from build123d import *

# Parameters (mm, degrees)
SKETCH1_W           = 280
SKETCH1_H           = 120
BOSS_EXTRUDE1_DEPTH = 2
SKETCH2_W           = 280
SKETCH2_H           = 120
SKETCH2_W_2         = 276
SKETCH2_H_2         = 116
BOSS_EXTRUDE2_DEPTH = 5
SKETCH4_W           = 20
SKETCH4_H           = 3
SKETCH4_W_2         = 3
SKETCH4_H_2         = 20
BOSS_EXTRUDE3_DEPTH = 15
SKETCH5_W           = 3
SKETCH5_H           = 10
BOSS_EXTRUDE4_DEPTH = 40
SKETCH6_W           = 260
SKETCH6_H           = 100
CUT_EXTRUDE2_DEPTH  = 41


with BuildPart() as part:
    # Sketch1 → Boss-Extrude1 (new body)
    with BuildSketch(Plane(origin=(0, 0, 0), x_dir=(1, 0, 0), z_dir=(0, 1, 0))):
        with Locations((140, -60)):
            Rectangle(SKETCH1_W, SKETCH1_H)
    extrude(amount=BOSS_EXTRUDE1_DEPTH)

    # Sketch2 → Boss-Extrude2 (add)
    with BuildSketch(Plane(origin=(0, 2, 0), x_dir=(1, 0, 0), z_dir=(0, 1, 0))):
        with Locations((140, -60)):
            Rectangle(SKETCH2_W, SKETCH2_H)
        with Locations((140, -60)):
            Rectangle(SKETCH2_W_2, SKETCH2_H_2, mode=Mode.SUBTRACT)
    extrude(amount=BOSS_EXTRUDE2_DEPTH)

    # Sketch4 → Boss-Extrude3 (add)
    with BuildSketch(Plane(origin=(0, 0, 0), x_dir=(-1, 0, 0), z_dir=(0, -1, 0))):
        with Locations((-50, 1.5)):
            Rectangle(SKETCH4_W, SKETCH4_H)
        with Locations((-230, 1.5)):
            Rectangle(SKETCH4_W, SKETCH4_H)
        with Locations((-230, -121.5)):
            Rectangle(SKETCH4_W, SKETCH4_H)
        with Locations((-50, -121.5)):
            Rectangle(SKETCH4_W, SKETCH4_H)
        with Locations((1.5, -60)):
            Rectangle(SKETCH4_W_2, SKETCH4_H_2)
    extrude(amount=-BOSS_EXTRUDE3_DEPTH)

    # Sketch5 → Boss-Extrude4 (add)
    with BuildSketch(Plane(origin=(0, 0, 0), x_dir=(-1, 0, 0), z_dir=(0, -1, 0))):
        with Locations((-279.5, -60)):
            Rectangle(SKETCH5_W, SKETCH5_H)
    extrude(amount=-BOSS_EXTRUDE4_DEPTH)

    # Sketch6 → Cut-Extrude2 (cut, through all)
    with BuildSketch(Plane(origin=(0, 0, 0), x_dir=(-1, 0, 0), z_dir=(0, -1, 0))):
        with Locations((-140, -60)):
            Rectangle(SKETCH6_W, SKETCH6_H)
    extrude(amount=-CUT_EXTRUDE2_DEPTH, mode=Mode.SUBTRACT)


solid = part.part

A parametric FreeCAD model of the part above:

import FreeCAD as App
import Part
import Sketcher
Q = App.Units.Quantity

doc = App.newDocument("Part")
body = doc.addObject("PartDesign::Body", "Body")

sketch1 = body.newObject("Sketcher::SketchObject", "Sketch")
sketch1.AttachmentSupport = (doc.getObject("XZ_Plane"), [""])
sketch1.MapMode = "FlatFace"
sketch1.addGeometry(Part.LineSegment(App.Vector(0, 0, 0), App.Vector(0, 120, 0)), False)
sketch1.addGeometry(Part.LineSegment(App.Vector(0, 120, 0), App.Vector(280, 120, 0)), False)
sketch1.addGeometry(Part.LineSegment(App.Vector(280, 120, 0), App.Vector(280, 0, 0)), False)
sketch1.addGeometry(Part.LineSegment(App.Vector(280, 0, 0), App.Vector(0, 0, 0)), False)
sketch1.addConstraint(Sketcher.Constraint("Coincident", 0, 2, 1, 1))
sketch1.addConstraint(Sketcher.Constraint("Coincident", 1, 2, 2, 1))
sketch1.addConstraint(Sketcher.Constraint("Coincident", 2, 2, 3, 1))
sketch1.addConstraint(Sketcher.Constraint("Coincident", 3, 2, 0, 1))
sketch1.addConstraint(Sketcher.Constraint("Vertical", 0))
sketch1.addConstraint(Sketcher.Constraint("Horizontal", 1))
sketch1.addConstraint(Sketcher.Constraint("Vertical", 2))
sketch1.addConstraint(Sketcher.Constraint("Horizontal", 3))
sketch1.addConstraint(Sketcher.Constraint("Coincident", 3, 2, -1, 1))
sketch1.addConstraint(Sketcher.Constraint("DistanceX", 1, 1, 1, 2, Q("280 mm")))
sketch1.addConstraint(Sketcher.Constraint("DistanceY", 0, 1, 0, 2, Q("120 mm")))
pad1 = body.newObject("PartDesign::Pad", "Pad")
pad1.Profile = sketch1
pad1.Length = 2
pad1.Reversed = True

sketch2 = body.newObject("Sketcher::SketchObject", "Sketch001")
sketch2.AttachmentSupport = (doc.getObject("XZ_Plane"), [""])
sketch2.MapMode = "FlatFace"
sketch2.AttachmentOffset = App.Placement(App.Vector(0, 0, -2), App.Rotation())
sketch2.addGeometry(Part.LineSegment(App.Vector(0, 0, 0), App.Vector(0, 120, 0)), False)
sketch2.addGeometry(Part.LineSegment(App.Vector(0, 120, 0), App.Vector(280, 120, 0)), False)
sketch2.addGeometry(Part.LineSegment(App.Vector(280, 120, 0), App.Vector(280, 0, 0)), False)
sketch2.addGeometry(Part.LineSegment(App.Vector(280, 0, 0), App.Vector(0, 0, 0)), False)
sketch2.addGeometry(Part.LineSegment(App.Vector(278, 118, 0), App.Vector(2, 118, 0)), False)
sketch2.addGeometry(Part.LineSegment(App.Vector(2, 118, 0), App.Vector(2, 2, 0)), False)
sketch2.addGeometry(Part.LineSegment(App.Vector(2, 2, 0), App.Vector(278, 2, 0)), False)
sketch2.addGeometry(Part.LineSegment(App.Vector(278, 2, 0), App.Vector(278, 118, 0)), False)
sketch2.addConstraint(Sketcher.Constraint("Coincident", 0, 2, 1, 1))
sketch2.addConstraint(Sketcher.Constraint("Coincident", 1, 2, 2, 1))
sketch2.addConstraint(Sketcher.Constraint("Coincident", 2, 2, 3, 1))
sketch2.addConstraint(Sketcher.Constraint("Coincident", 3, 2, 0, 1))
sketch2.addConstraint(Sketcher.Constraint("Coincident", 4, 2, 5, 1))
sketch2.addConstraint(Sketcher.Constraint("Coincident", 5, 2, 6, 1))
sketch2.addConstraint(Sketcher.Constraint("Coincident", 6, 2, 7, 1))
sketch2.addConstraint(Sketcher.Constraint("Coincident", 7, 2, 4, 1))
sketch2.addConstraint(Sketcher.Constraint("Vertical", 0))
sketch2.addConstraint(Sketcher.Constraint("Horizontal", 1))
sketch2.addConstraint(Sketcher.Constraint("Vertical", 2))
sketch2.addConstraint(Sketcher.Constraint("Horizontal", 3))
sketch2.addConstraint(Sketcher.Constraint("Horizontal", 4))
sketch2.addConstraint(Sketcher.Constraint("Vertical", 5))
sketch2.addConstraint(Sketcher.Constraint("Horizontal", 6))
sketch2.addConstraint(Sketcher.Constraint("Vertical", 7))
sketch2.addConstraint(Sketcher.Constraint("Coincident", 3, 2, -1, 1))
sketch2.addConstraint(Sketcher.Constraint("DistanceX", 1, 1, 1, 2, Q("280 mm")))
sketch2.addConstraint(Sketcher.Constraint("DistanceX", 4, 2, 4, 1, Q("276 mm")))
sketch2.addConstraint(Sketcher.Constraint("DistanceY", 0, 1, 0, 2, Q("120 mm")))
sketch2.addConstraint(Sketcher.Constraint("DistanceY", 5, 2, 5, 1, Q("116 mm")))
sketch2.addConstraint(Sketcher.Constraint("DistanceX", -1, 1, 4, 2, Q("2 mm")))
sketch2.addConstraint(Sketcher.Constraint("DistanceY", -1, 1, 4, 2, Q("118 mm")))
pad2 = body.newObject("PartDesign::Pad", "Pad001")
pad2.Profile = sketch2
pad2.Length = 5
pad2.Reversed = True

sketch3 = body.newObject("Sketcher::SketchObject", "Sketch002")
sketch3.AttachmentSupport = (doc.getObject("XZ_Plane"), [""])
sketch3.MapMode = "FlatFace"
sketch3.addGeometry(Part.LineSegment(App.Vector(60, -3, 0), App.Vector(60, 0, 0)), False)
sketch3.addGeometry(Part.LineSegment(App.Vector(60, 0, 0), App.Vector(40, 0, 0)), False)
sketch3.addGeometry(Part.LineSegment(App.Vector(40, 0, 0), App.Vector(40, -3, 0)), False)
sketch3.addGeometry(Part.LineSegment(App.Vector(40, -3, 0), App.Vector(60, -3, 0)), False)
sketch3.addGeometry(Part.LineSegment(App.Vector(240, -3, 0), App.Vector(240, 0, 0)), False)
sketch3.addGeometry(Part.LineSegment(App.Vector(240, 0, 0), App.Vector(220, 0, 0)), False)
sketch3.addGeometry(Part.LineSegment(App.Vector(220, 0, 0), App.Vector(220, -3, 0)), False)
sketch3.addGeometry(Part.LineSegment(App.Vector(220, -3, 0), App.Vector(240, -3, 0)), False)
sketch3.addGeometry(Part.LineSegment(App.Vector(240, 120, 0), App.Vector(240, 123, 0)), False)
sketch3.addGeometry(Part.LineSegment(App.Vector(240, 123, 0), App.Vector(220, 123, 0)), False)
sketch3.addGeometry(Part.LineSegment(App.Vector(220, 123, 0), App.Vector(220, 120, 0)), False)
sketch3.addGeometry(Part.LineSegment(App.Vector(220, 120, 0), App.Vector(240, 120, 0)), False)
sketch3.addGeometry(Part.LineSegment(App.Vector(60, 120, 0), App.Vector(60, 123, 0)), False)
sketch3.addGeometry(Part.LineSegment(App.Vector(60, 123, 0), App.Vector(40, 123, 0)), False)
sketch3.addGeometry(Part.LineSegment(App.Vector(40, 123, 0), App.Vector(40, 120, 0)), False)
sketch3.addGeometry(Part.LineSegment(App.Vector(40, 120, 0), App.Vector(60, 120, 0)), False)
sketch3.addGeometry(Part.LineSegment(App.Vector(0, 50, 0), App.Vector(0, 70, 0)), False)
sketch3.addGeometry(Part.LineSegment(App.Vector(0, 70, 0), App.Vector(-3, 70, 0)), False)
sketch3.addGeometry(Part.LineSegment(App.Vector(-3, 70, 0), App.Vector(-3, 50, 0)), False)
sketch3.addGeometry(Part.LineSegment(App.Vector(-3, 50, 0), App.Vector(0, 50, 0)), False)
sketch3.addConstraint(Sketcher.Constraint("Coincident", 0, 2, 1, 1))
sketch3.addConstraint(Sketcher.Constraint("Coincident", 1, 2, 2, 1))
sketch3.addConstraint(Sketcher.Constraint("Coincident", 2, 2, 3, 1))
sketch3.addConstraint(Sketcher.Constraint("Coincident", 3, 2, 0, 1))
sketch3.addConstraint(Sketcher.Constraint("Coincident", 4, 2, 5, 1))
sketch3.addConstraint(Sketcher.Constraint("Coincident", 5, 2, 6, 1))
sketch3.addConstraint(Sketcher.Constraint("Coincident", 6, 2, 7, 1))
sketch3.addConstraint(Sketcher.Constraint("Coincident", 7, 2, 4, 1))
sketch3.addConstraint(Sketcher.Constraint("Coincident", 8, 2, 9, 1))
sketch3.addConstraint(Sketcher.Constraint("Coincident", 9, 2, 10, 1))
sketch3.addConstraint(Sketcher.Constraint("Coincident", 10, 2, 11, 1))
sketch3.addConstraint(Sketcher.Constraint("Coincident", 11, 2, 8, 1))
sketch3.addConstraint(Sketcher.Constraint("Coincident", 12, 2, 13, 1))
sketch3.addConstraint(Sketcher.Constraint("Coincident", 13, 2, 14, 1))
sketch3.addConstraint(Sketcher.Constraint("Coincident", 14, 2, 15, 1))
sketch3.addConstraint(Sketcher.Constraint("Coincident", 15, 2, 12, 1))
sketch3.addConstraint(Sketcher.Constraint("Coincident", 16, 2, 17, 1))
sketch3.addConstraint(Sketcher.Constraint("Coincident", 17, 2, 18, 1))
sketch3.addConstraint(Sketcher.Constraint("Coincident", 18, 2, 19, 1))
sketch3.addConstraint(Sketcher.Constraint("Coincident", 19, 2, 16, 1))
sketch3.addConstraint(Sketcher.Constraint("Vertical", 0))
sketch3.addConstraint(Sketcher.Constraint("Horizontal", 1))
sketch3.addConstraint(Sketcher.Constraint("Vertical", 2))
sketch3.addConstraint(Sketcher.Constraint("Horizontal", 3))
sketch3.addConstraint(Sketcher.Constraint("Vertical", 4))
sketch3.addConstraint(Sketcher.Constraint("Horizontal", 5))
sketch3.addConstraint(Sketcher.Constraint("Vertical", 6))
sketch3.addConstraint(Sketcher.Constraint("Horizontal", 7))
sketch3.addConstraint(Sketcher.Constraint("Vertical", 8))
sketch3.addConstraint(Sketcher.Constraint("Horizontal", 9))
sketch3.addConstraint(Sketcher.Constraint("Vertical", 10))
sketch3.addConstraint(Sketcher.Constraint("Horizontal", 11))
sketch3.addConstraint(Sketcher.Constraint("Vertical", 12))
sketch3.addConstraint(Sketcher.Constraint("Horizontal", 13))
sketch3.addConstraint(Sketcher.Constraint("Vertical", 14))
sketch3.addConstraint(Sketcher.Constraint("Horizontal", 15))
sketch3.addConstraint(Sketcher.Constraint("Vertical", 16))
sketch3.addConstraint(Sketcher.Constraint("Horizontal", 17))
sketch3.addConstraint(Sketcher.Constraint("Vertical", 18))
sketch3.addConstraint(Sketcher.Constraint("Horizontal", 19))
sketch3.addConstraint(Sketcher.Constraint("PointOnObject", 0, 2, -1))
sketch3.addConstraint(Sketcher.Constraint("PointOnObject", 4, 2, -1))
sketch3.addConstraint(Sketcher.Constraint("PointOnObject", 16, 2, -2))
sketch3.addConstraint(Sketcher.Constraint("Horizontal", 3, 2, 6, 2))
sketch3.addConstraint(Sketcher.Constraint("Horizontal", 9, 2, 12, 2))
sketch3.addConstraint(Sketcher.Constraint("Horizontal", 11, 2, 14, 2))
sketch3.addConstraint(Sketcher.Constraint("Vertical", 7, 2, 8, 2))
sketch3.addConstraint(Sketcher.Constraint("Vertical", 6, 2, 9, 2))
sketch3.addConstraint(Sketcher.Constraint("Vertical", 3, 2, 12, 2))
sketch3.addConstraint(Sketcher.Constraint("Vertical", 2, 2, 13, 2))
sketch3.addConstraint(Sketcher.Constraint("Equal", 3, 5))
sketch3.addConstraint(Sketcher.Constraint("Equal", 19, 0))
sketch3.addConstraint(Sketcher.Constraint("Equal", 6, 8))
sketch3.addConstraint(Sketcher.Constraint("Equal", 15, 16))
sketch3.addConstraint(Sketcher.Constraint("DistanceX", 1, 2, 1, 1, Q("20 mm")))
sketch3.addConstraint(Sketcher.Constraint("DistanceX", 17, 2, 17, 1, Q("3 mm")))
sketch3.addConstraint(Sketcher.Constraint("DistanceX", -1, 1, 0, 2, Q("60 mm")))
sketch3.addConstraint(Sketcher.Constraint("DistanceX", -1, 1, 4, 2, Q("240 mm")))
sketch3.addConstraint(Sketcher.Constraint("DistanceY", -1, 1, 8, 2, Q("123 mm")))
sketch3.addConstraint(Sketcher.Constraint("DistanceY", -1, 1, 16, 2, Q("70 mm")))
pad3 = body.newObject("PartDesign::Pad", "Pad002")
pad3.Profile = sketch3
pad3.Length = 15
pad3.Reversed = True

sketch4 = body.newObject("Sketcher::SketchObject", "Sketch003")
sketch4.AttachmentSupport = (doc.getObject("XZ_Plane"), [""])
sketch4.MapMode = "FlatFace"
sketch4.addGeometry(Part.LineSegment(App.Vector(281, 55, 0), App.Vector(281, 65, 0)), False)
sketch4.addGeometry(Part.LineSegment(App.Vector(281, 65, 0), App.Vector(278, 65, 0)), False)
sketch4.addGeometry(Part.LineSegment(App.Vector(278, 65, 0), App.Vector(278, 55, 0)), False)
sketch4.addGeometry(Part.LineSegment(App.Vector(278, 55, 0), App.Vector(281, 55, 0)), False)
sketch4.addConstraint(Sketcher.Constraint("Coincident", 0, 2, 1, 1))
sketch4.addConstraint(Sketcher.Constraint("Coincident", 1, 2, 2, 1))
sketch4.addConstraint(Sketcher.Constraint("Coincident", 2, 2, 3, 1))
sketch4.addConstraint(Sketcher.Constraint("Coincident", 3, 2, 0, 1))
sketch4.addConstraint(Sketcher.Constraint("Vertical", 0))
sketch4.addConstraint(Sketcher.Constraint("Horizontal", 1))
sketch4.addConstraint(Sketcher.Constraint("Vertical", 2))
sketch4.addConstraint(Sketcher.Constraint("Horizontal", 3))
sketch4.addConstraint(Sketcher.Constraint("DistanceX", 1, 2, 1, 1, Q("3 mm")))
sketch4.addConstraint(Sketcher.Constraint("DistanceY", 0, 1, 0, 2, Q("10 mm")))
sketch4.addConstraint(Sketcher.Constraint("DistanceX", -1, 1, 0, 2, Q("281 mm")))
sketch4.addConstraint(Sketcher.Constraint("DistanceY", -1, 1, 0, 2, Q("65 mm")))
pad4 = body.newObject("PartDesign::Pad", "Pad003")
pad4.Profile = sketch4
pad4.Length = 40
pad4.Reversed = True

sketch5 = body.newObject("Sketcher::SketchObject", "Sketch004")
sketch5.AttachmentSupport = (doc.getObject("XZ_Plane"), [""])
sketch5.MapMode = "FlatFace"
sketch5.addGeometry(Part.LineSegment(App.Vector(270, 10, 0), App.Vector(270, 110, 0)), False)
sketch5.addGeometry(Part.LineSegment(App.Vector(270, 110, 0), App.Vector(10, 110, 0)), False)
sketch5.addGeometry(Part.LineSegment(App.Vector(10, 110, 0), App.Vector(10, 10, 0)), False)
sketch5.addGeometry(Part.LineSegment(App.Vector(10, 10, 0), App.Vector(270, 10, 0)), False)
sketch5.addConstraint(Sketcher.Constraint("Coincident", 0, 2, 1, 1))
sketch5.addConstraint(Sketcher.Constraint("Coincident", 1, 2, 2, 1))
sketch5.addConstraint(Sketcher.Constraint("Coincident", 2, 2, 3, 1))
sketch5.addConstraint(Sketcher.Constraint("Coincident", 3, 2, 0, 1))
sketch5.addConstraint(Sketcher.Constraint("Vertical", 0))
sketch5.addConstraint(Sketcher.Constraint("Horizontal", 1))
sketch5.addConstraint(Sketcher.Constraint("Vertical", 2))
sketch5.addConstraint(Sketcher.Constraint("Horizontal", 3))
sketch5.addConstraint(Sketcher.Constraint("DistanceX", 1, 2, 1, 1, Q("260 mm")))
sketch5.addConstraint(Sketcher.Constraint("DistanceY", 0, 1, 0, 2, Q("100 mm")))
sketch5.addConstraint(Sketcher.Constraint("DistanceX", -1, 1, 0, 2, Q("270 mm")))
sketch5.addConstraint(Sketcher.Constraint("DistanceY", -1, 1, 0, 2, Q("110 mm")))
pocket1 = body.newObject("PartDesign::Pocket", "Pocket")
pocket1.Profile = sketch5
pocket1.Type = "ThroughAll"

doc.recompute()
